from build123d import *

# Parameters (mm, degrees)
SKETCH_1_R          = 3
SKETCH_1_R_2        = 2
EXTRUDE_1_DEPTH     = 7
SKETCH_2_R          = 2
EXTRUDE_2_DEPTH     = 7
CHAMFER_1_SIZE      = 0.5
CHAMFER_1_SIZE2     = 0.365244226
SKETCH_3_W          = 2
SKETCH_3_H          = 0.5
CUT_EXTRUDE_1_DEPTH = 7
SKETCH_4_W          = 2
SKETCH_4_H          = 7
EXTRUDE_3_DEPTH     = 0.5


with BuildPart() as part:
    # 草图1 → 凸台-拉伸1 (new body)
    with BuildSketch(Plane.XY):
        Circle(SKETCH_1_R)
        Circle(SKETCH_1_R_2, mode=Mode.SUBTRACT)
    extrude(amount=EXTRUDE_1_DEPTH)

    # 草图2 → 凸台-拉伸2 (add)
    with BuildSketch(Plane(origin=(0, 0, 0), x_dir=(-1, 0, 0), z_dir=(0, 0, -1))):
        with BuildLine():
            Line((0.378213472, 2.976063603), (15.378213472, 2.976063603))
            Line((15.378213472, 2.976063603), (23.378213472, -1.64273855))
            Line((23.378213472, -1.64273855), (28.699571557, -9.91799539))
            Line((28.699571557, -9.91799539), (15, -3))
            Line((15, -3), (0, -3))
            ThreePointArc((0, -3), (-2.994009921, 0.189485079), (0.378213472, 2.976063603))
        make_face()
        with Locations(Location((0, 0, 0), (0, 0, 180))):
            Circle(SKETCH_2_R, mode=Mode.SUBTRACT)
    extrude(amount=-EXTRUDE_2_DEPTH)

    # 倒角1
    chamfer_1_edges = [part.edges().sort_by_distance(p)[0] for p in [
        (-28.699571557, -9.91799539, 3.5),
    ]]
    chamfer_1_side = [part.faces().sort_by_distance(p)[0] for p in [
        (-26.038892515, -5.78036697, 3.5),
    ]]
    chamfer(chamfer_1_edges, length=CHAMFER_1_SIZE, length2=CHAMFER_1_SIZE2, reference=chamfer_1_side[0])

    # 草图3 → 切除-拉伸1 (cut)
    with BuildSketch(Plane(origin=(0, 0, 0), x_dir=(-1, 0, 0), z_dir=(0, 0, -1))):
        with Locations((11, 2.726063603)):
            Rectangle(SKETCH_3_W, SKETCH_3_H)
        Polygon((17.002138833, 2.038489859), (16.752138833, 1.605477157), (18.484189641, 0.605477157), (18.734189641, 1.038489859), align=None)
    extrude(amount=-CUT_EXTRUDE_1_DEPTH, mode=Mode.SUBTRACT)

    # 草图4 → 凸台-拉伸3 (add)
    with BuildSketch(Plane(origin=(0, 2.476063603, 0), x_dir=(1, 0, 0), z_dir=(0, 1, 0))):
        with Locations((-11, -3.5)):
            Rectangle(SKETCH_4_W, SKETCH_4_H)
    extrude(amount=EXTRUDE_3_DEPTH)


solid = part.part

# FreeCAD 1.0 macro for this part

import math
import FreeCAD as App
import Part
import Sketcher
from FreeCAD import Vector
Q = App.Units.Quantity


def edges_at(feature, points):
    """Names of the edges that pass closest to the given points."""
    edges = feature.Shape.Edges
    near = lambda p: min(range(len(edges)), key=lambda i: edges[i].distToShape(Part.Vertex(*p))[0])
    return sorted({f"Edge{near(p) + 1}" for p in points})


def add_polygon(sketch, points):
    """Adds a closed chain of lines whose ends are joined by coincident constraints."""
    first, n = sketch.GeometryCount, len(points)
    for a, b in zip(points, points[1:] + points[:1]):
        sketch.addGeometry(Part.LineSegment(App.Vector(*a, 0), App.Vector(*b, 0)), False)
    for i in range(n):
        sketch.addConstraint(Sketcher.Constraint("Coincident", first + i, 2, first + (i + 1) % n, 1))

doc = App.newDocument("Part")
params = doc.addObject("Spreadsheet::Sheet", "Params")
for row, (alias, value) in enumerate([
    ("sketch1_diameter", "6 mm"),
    ("sketch1_diameter2", "4 mm"),
    ("pad1_length", "7 mm"),
    ("sketch2_diameter", "4 mm"),
    ("sketch2_radius", "3 mm"),
    ("sketch2_width", "15 mm"),
    ("pad2_length", "7 mm"),
    ("chamfer_size", "0.5 mm"),
    ("chamfer_size2", "0.365244 mm"),
    ("sketch3_width", "2 mm"),
    ("sketch3_length", "2 mm"),
    ("sketch3_height", "0.5 mm"),
    ("sketch3_length2", "0.5 mm"),
    ("pocket1_length", "7 mm"),
    ("sketch4_width", "2 mm"),
    ("sketch4_height", "7 mm"),
    ("pad3_length", "0.5 mm"),
], start=1):
    params.set(f"A{row}", alias)
    params.set(f"B{row}", "=" + value)
    params.setAlias(f"B{row}", alias)

body = doc.addObject("PartDesign::Body", "Body")

sketch1 = body.newObject("Sketcher::SketchObject", "Sketch")
sketch1.AttachmentSupport = (doc.getObject("XY_Plane"), [""])
sketch1.MapMode = "FlatFace"
sketch1.addGeometry(Part.Circle(Vector(0, 0, 0), Vector(0, 0, 1), 3), False)
sketch1.addGeometry(Part.Circle(Vector(0, 0, 0), Vector(0, 0, 1), 2), False)
sketch1.addConstraint(Sketcher.Constraint("Coincident", 0, 3, -1, 1))
sketch1.addConstraint(Sketcher.Constraint("Coincident", 1, 3, -1, 1))
sketch1.addConstraint(Sketcher.Constraint("Diameter", 0, 6.0))
sketch1.addConstraint(Sketcher.Constraint("Diameter", 1, 4.0))
sketch1.setExpression("Constraints[2]", "Params.sketch1_diameter")
sketch1.setExpression("Constraints[3]", "Params.sketch1_diameter2")
pad1 = body.newObject("PartDesign::Pad", "Pad")
pad1.Profile = sketch1
pad1.setExpression("Length", "Params.pad1_length")

sketch2 = body.newObject("Sketcher::SketchObject", "Sketch001")
sketch2.AttachmentSupport = (doc.getObject("XY_Plane"), [""])
sketch2.MapMode = "FlatFace"
sketch2.addGeometry(Part.LineSegment(Vector(-15.378213, 2.976064, 0), Vector(-0.378213, 2.976064, 0)), False)
sketch2.addGeometry(Part.ArcOfCircle(Part.Circle(Vector(0, 0, 0), Vector(0, 0, 1), 3), math.radians(-90), math.radians(97.242618)), False)
sketch2.addGeometry(Part.LineSegment(Vector(0, -3, 0), Vector(-15, -3, 0)), False)
sketch2.addGeometry(Part.LineSegment(Vector(-15, -3, 0), Vector(-28.699572, -9.917995, 0)), False)
sketch2.addGeometry(Part.LineSegment(Vector(-28.699572, -9.917995, 0), Vector(-23.378213, -1.642739, 0)), False)
sketch2.addGeometry(Part.LineSegment(Vector(-23.378213, -1.642739, 0), Vector(-15.378213, 2.976064, 0)), False)
sketch2.addGeometry(Part.Circle(Vector(0, 0, 0), Vector(0, 0, 1), 2), False)
sketch2.addConstraint(Sketcher.Constraint("Coincident", 0, 2, 1, 2))
sketch2.addConstraint(Sketcher.Constraint("Tangent", 1, 1, 2, 1))
sketch2.addConstraint(Sketcher.Constraint("Coincident", 2, 2, 3, 1))
sketch2.addConstraint(Sketcher.Constraint("Coincident", 3, 2, 4, 1))
sketch2.addConstraint(Sketcher.Constraint("Coincident", 4, 2, 5, 1))
sketch2.addConstraint(Sketcher.Constraint("Coincident", 5, 2, 0, 1))
sketch2.addConstraint(Sketcher.Constraint("Horizontal", 0))
sketch2.addConstraint(Sketcher.Constraint("Horizontal", 2))
sketch2.addConstraint(Sketcher.Constraint("Coincident", 1, 3, -1, 1))
sketch2.addConstraint(Sketcher.Constraint("Coincident", 6, 3, -1, 1))
sketch2.addConstraint(Sketcher.Constraint("Equal", 0, 2))
sketch2.addConstraint(Sketcher.Constraint("Diameter", 6, 4.0))
sketch2.addConstraint(Sketcher.Constraint("Radius", 1, 3.0))
sketch2.addConstraint(Sketcher.Constraint("DistanceX", 0, 1, 0, 2, 15.0))
sketch2.addConstraint(Sketcher.Constraint("Angle", 5, Q("30 deg")))
sketch2.addConstraint(Sketcher.Constraint("DistanceX", 4, 2, 5, 2, 8.0))
sketch2.addConstraint(Sketcher.Constraint("DistanceX", 3, 2, -1, 1, 28.699572))
sketch2.addConstraint(Sketcher.Constraint("DistanceY", 4, 2, -1, 1, 1.642739))
sketch2.addConstraint(Sketcher.Constraint("DistanceY", 3, 2, 0, 2, 12.894059))
sketch2.setExpression("Constraints[11]", "Params.sketch2_diameter")
sketch2.setExpression("Constraints[12]", "Params.sketch2_radius")
sketch2.setExpression("Constraints[13]", "Params.sketch2_width")
pad2 = body.newObject("PartDesign::Pad", "Pad001")
pad2.Profile = sketch2
pad2.setExpression("Length", "Params.pad2_length")
doc.recompute()

chamfer = body.newObject("PartDesign::Chamfer", "Chamfer")
chamfer.Base = (pad2, edges_at(pad2, [(-28.7, -9.918, 3.5)]))
chamfer.ChamferType = "Two distances"
chamfer.setExpression("Size", "Params.chamfer_size")
chamfer.setExpression("Size2", "Params.chamfer_size2")
chamfer.FlipDirection = True

sketch3 = body.newObject("Sketcher::SketchObject", "Sketch002")
sketch3.AttachmentSupport = (doc.getObject("XY_Plane"), [""])
sketch3.MapMode = "FlatFace"
add_polygon(sketch3, [(-10, 2.976064), (-10, 2.476064), (-12, 2.476064), (-12, 2.976064)])
add_polygon(sketch3, [(-17.002139, 2.03849), (-16.752139, 1.605477), (-18.48419, 0.605477), (-18.73419, 1.03849)])
sketch3.addConstraint(Sketcher.Constraint("Vertical", 0))
sketch3.addConstraint(Sketcher.Constraint("Horizontal", 1))
sketch3.addConstraint(Sketcher.Constraint("Vertical", 2))
sketch3.addConstraint(Sketcher.Constraint("Horizontal", 3))
sketch3.addConstraint(Sketcher.Constraint("Perpendicular", 4, 5))
sketch3.addConstraint(Sketcher.Constraint("Perpendicular", 5, 6))
sketch3.addConstraint(Sketcher.Constraint("Perpendicular", 6, 7))
sketch3.addConstraint(Sketcher.Constraint("DistanceX", 1, 2, 1, 1, 2.0))
sketch3.addConstraint(Sketcher.Constraint("Angle", 4, Q("-60 deg")))
sketch3.addConstraint(Sketcher.Constraint("Distance", 5, 2.0))
sketch3.addConstraint(Sketcher.Constraint("DistanceY", 0, 2, 0, 1, 0.5))
sketch3.addConstraint(Sketcher.Constraint("DistanceX", 0, 2, -1, 1, 10.0))
sketch3.addConstraint(Sketcher.Constraint("Distance", 4, 0.5))
sketch3.addConstraint(Sketcher.Constraint("DistanceX", 4, 2, -1, 1, 16.752139))
sketch3.addConstraint(Sketcher.Constraint("DistanceY", -1, 1, 6, 2, 1.03849))
sketch3.addConstraint(Sketcher.Constraint("DistanceY", -1, 1, 0, 2, 2.476064))
sketch3.setExpression("Constraints[15]", "Params.sketch3_width")
sketch3.setExpression("Constraints[17]", "Params.sketch3_length")
sketch3.setExpression("Constraints[18]", "Params.sketch3_height")
sketch3.setExpression("Constraints[20]", "Params.sketch3_length2")
pocket1 = body.newObject("PartDesign::Pocket", "Pocket")
pocket1.Profile = sketch3
pocket1.setExpression("Length", "Params.pocket1_length")
pocket1.Reversed = True

sketch4 = body.newObject("Sketcher::SketchObject", "Sketch003")
sketch4.AttachmentSupport = (doc.getObject("XZ_Plane"), [""])
sketch4.MapMode = "FlatFace"
sketch4.AttachmentOffset = App.Placement(Vector(0, 0, -2.476064), App.Rotation())
add_polygon(sketch4, [(-12, 0), (-12, 7), (-10, 7), (-10, 0)])
sketch4.addConstraint(Sketcher.Constraint("Vertical", 0))
sketch4.addConstraint(Sketcher.Constraint("Horizontal", 1))
sketch4.addConstraint(Sketcher.Constraint("Vertical", 2))
sketch4.addConstraint(Sketcher.Constraint("Horizontal", 3))
sketch4.addConstraint(Sketcher.Constraint("PointOnObject", 2, 2, -1))
sketch4.addConstraint(Sketcher.Constraint("DistanceX", 1, 1, 1, 2, 2.0))
sketch4.addConstraint(Sketcher.Constraint("DistanceY", 0, 1, 0, 2, 7.0))
sketch4.addConstraint(Sketcher.Constraint("DistanceX", 0, 2, -1, 1, 12.0))
sketch4.setExpression("Constraints[9]", "Params.sketch4_width")
sketch4.setExpression("Constraints[10]", "Params.sketch4_height")
pad3 = body.newObject("PartDesign::Pad", "Pad002")
pad3.Profile = sketch4
pad3.setExpression("Length", "Params.pad3_length")
pad3.Reversed = True

doc.recompute()
